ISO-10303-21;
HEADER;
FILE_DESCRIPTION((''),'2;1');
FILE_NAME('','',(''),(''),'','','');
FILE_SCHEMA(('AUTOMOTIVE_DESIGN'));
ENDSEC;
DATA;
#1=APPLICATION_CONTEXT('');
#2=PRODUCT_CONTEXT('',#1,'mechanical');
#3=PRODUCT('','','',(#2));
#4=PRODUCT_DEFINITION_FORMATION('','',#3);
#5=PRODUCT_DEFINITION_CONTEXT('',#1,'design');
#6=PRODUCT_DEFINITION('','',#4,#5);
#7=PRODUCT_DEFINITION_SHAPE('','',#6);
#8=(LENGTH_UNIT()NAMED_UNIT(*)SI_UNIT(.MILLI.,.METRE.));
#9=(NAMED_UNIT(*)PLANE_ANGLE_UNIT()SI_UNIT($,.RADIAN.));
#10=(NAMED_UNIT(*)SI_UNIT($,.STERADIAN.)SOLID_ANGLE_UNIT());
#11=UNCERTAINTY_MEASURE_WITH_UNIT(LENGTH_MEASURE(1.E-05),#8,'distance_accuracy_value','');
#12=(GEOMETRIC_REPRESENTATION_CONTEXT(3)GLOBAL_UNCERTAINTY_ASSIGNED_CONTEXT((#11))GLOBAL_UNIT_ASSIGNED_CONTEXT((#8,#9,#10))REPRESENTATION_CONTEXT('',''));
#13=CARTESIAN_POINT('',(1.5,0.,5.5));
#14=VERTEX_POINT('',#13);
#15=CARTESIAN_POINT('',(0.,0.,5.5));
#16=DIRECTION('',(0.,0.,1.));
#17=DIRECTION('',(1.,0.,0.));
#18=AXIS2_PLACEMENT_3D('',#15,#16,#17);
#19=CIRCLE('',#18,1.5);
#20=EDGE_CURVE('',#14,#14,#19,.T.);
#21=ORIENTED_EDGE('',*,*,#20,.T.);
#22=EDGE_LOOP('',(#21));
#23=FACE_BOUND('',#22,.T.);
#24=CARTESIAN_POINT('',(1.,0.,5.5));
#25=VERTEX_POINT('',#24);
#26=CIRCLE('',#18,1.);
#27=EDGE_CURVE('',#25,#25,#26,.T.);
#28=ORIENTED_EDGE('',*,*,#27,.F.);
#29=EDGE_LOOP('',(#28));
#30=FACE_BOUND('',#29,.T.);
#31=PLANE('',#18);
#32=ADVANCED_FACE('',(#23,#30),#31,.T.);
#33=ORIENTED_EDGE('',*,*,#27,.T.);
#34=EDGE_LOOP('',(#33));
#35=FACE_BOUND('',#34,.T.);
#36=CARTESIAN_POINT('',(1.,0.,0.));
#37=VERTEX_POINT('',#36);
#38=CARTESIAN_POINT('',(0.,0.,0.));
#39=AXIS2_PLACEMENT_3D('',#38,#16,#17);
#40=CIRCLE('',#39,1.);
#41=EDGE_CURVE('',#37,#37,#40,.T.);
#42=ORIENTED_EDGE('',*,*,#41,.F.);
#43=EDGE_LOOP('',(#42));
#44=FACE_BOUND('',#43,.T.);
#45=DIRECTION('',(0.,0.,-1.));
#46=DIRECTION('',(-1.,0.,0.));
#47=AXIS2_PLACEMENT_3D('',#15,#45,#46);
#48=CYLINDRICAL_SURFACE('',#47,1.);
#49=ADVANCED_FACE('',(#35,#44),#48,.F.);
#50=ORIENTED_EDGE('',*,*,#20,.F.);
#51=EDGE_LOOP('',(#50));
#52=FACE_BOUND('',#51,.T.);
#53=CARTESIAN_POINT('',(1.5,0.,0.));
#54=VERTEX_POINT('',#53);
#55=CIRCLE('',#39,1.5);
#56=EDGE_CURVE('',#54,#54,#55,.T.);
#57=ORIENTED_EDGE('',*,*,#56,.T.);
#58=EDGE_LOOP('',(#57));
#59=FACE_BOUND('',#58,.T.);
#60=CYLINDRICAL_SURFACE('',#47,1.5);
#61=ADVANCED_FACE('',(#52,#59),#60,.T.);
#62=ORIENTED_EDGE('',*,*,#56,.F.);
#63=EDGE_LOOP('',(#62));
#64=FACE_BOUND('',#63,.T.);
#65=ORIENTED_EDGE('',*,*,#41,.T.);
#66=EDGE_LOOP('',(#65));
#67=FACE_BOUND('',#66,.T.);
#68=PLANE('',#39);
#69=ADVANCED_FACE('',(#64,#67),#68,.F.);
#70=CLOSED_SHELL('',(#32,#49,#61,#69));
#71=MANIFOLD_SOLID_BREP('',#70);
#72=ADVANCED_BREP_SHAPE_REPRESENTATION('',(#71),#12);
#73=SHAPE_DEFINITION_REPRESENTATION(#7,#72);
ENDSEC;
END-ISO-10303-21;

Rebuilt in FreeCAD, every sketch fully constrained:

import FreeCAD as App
import Part
import Sketcher

V = App.Vector
Q = App.Units.Quantity

doc = App.newDocument("Part")
body = doc.addObject("PartDesign::Body", "Body")

sketch1 = body.newObject("Sketcher::SketchObject", "Sketch")
sketch1.AttachmentSupport = (doc.getObject("XY_Plane"), [""])
sketch1.MapMode = "FlatFace"
sketch1.addGeometry(Part.Circle(V(0, 0, 0), V(0, 0, 1), 1.5), False)
sketch1.addGeometry(Part.Circle(V(0, 0, 0), V(0, 0, 1), 1), False)
sketch1.addConstraint(Sketcher.Constraint("Coincident", 0, 3, -1, 1))
sketch1.addConstraint(Sketcher.Constraint("Coincident", 1, 3, -1, 1))
sketch1.addConstraint(Sketcher.Constraint("Diameter", 0, Q("3 mm")))
sketch1.addConstraint(Sketcher.Constraint("Diameter", 1, Q("2 mm")))
pad1 = body.newObject("PartDesign::Pad", "Pad")
pad1.Profile = sketch1
pad1.Length = 5.5

doc.recompute()
